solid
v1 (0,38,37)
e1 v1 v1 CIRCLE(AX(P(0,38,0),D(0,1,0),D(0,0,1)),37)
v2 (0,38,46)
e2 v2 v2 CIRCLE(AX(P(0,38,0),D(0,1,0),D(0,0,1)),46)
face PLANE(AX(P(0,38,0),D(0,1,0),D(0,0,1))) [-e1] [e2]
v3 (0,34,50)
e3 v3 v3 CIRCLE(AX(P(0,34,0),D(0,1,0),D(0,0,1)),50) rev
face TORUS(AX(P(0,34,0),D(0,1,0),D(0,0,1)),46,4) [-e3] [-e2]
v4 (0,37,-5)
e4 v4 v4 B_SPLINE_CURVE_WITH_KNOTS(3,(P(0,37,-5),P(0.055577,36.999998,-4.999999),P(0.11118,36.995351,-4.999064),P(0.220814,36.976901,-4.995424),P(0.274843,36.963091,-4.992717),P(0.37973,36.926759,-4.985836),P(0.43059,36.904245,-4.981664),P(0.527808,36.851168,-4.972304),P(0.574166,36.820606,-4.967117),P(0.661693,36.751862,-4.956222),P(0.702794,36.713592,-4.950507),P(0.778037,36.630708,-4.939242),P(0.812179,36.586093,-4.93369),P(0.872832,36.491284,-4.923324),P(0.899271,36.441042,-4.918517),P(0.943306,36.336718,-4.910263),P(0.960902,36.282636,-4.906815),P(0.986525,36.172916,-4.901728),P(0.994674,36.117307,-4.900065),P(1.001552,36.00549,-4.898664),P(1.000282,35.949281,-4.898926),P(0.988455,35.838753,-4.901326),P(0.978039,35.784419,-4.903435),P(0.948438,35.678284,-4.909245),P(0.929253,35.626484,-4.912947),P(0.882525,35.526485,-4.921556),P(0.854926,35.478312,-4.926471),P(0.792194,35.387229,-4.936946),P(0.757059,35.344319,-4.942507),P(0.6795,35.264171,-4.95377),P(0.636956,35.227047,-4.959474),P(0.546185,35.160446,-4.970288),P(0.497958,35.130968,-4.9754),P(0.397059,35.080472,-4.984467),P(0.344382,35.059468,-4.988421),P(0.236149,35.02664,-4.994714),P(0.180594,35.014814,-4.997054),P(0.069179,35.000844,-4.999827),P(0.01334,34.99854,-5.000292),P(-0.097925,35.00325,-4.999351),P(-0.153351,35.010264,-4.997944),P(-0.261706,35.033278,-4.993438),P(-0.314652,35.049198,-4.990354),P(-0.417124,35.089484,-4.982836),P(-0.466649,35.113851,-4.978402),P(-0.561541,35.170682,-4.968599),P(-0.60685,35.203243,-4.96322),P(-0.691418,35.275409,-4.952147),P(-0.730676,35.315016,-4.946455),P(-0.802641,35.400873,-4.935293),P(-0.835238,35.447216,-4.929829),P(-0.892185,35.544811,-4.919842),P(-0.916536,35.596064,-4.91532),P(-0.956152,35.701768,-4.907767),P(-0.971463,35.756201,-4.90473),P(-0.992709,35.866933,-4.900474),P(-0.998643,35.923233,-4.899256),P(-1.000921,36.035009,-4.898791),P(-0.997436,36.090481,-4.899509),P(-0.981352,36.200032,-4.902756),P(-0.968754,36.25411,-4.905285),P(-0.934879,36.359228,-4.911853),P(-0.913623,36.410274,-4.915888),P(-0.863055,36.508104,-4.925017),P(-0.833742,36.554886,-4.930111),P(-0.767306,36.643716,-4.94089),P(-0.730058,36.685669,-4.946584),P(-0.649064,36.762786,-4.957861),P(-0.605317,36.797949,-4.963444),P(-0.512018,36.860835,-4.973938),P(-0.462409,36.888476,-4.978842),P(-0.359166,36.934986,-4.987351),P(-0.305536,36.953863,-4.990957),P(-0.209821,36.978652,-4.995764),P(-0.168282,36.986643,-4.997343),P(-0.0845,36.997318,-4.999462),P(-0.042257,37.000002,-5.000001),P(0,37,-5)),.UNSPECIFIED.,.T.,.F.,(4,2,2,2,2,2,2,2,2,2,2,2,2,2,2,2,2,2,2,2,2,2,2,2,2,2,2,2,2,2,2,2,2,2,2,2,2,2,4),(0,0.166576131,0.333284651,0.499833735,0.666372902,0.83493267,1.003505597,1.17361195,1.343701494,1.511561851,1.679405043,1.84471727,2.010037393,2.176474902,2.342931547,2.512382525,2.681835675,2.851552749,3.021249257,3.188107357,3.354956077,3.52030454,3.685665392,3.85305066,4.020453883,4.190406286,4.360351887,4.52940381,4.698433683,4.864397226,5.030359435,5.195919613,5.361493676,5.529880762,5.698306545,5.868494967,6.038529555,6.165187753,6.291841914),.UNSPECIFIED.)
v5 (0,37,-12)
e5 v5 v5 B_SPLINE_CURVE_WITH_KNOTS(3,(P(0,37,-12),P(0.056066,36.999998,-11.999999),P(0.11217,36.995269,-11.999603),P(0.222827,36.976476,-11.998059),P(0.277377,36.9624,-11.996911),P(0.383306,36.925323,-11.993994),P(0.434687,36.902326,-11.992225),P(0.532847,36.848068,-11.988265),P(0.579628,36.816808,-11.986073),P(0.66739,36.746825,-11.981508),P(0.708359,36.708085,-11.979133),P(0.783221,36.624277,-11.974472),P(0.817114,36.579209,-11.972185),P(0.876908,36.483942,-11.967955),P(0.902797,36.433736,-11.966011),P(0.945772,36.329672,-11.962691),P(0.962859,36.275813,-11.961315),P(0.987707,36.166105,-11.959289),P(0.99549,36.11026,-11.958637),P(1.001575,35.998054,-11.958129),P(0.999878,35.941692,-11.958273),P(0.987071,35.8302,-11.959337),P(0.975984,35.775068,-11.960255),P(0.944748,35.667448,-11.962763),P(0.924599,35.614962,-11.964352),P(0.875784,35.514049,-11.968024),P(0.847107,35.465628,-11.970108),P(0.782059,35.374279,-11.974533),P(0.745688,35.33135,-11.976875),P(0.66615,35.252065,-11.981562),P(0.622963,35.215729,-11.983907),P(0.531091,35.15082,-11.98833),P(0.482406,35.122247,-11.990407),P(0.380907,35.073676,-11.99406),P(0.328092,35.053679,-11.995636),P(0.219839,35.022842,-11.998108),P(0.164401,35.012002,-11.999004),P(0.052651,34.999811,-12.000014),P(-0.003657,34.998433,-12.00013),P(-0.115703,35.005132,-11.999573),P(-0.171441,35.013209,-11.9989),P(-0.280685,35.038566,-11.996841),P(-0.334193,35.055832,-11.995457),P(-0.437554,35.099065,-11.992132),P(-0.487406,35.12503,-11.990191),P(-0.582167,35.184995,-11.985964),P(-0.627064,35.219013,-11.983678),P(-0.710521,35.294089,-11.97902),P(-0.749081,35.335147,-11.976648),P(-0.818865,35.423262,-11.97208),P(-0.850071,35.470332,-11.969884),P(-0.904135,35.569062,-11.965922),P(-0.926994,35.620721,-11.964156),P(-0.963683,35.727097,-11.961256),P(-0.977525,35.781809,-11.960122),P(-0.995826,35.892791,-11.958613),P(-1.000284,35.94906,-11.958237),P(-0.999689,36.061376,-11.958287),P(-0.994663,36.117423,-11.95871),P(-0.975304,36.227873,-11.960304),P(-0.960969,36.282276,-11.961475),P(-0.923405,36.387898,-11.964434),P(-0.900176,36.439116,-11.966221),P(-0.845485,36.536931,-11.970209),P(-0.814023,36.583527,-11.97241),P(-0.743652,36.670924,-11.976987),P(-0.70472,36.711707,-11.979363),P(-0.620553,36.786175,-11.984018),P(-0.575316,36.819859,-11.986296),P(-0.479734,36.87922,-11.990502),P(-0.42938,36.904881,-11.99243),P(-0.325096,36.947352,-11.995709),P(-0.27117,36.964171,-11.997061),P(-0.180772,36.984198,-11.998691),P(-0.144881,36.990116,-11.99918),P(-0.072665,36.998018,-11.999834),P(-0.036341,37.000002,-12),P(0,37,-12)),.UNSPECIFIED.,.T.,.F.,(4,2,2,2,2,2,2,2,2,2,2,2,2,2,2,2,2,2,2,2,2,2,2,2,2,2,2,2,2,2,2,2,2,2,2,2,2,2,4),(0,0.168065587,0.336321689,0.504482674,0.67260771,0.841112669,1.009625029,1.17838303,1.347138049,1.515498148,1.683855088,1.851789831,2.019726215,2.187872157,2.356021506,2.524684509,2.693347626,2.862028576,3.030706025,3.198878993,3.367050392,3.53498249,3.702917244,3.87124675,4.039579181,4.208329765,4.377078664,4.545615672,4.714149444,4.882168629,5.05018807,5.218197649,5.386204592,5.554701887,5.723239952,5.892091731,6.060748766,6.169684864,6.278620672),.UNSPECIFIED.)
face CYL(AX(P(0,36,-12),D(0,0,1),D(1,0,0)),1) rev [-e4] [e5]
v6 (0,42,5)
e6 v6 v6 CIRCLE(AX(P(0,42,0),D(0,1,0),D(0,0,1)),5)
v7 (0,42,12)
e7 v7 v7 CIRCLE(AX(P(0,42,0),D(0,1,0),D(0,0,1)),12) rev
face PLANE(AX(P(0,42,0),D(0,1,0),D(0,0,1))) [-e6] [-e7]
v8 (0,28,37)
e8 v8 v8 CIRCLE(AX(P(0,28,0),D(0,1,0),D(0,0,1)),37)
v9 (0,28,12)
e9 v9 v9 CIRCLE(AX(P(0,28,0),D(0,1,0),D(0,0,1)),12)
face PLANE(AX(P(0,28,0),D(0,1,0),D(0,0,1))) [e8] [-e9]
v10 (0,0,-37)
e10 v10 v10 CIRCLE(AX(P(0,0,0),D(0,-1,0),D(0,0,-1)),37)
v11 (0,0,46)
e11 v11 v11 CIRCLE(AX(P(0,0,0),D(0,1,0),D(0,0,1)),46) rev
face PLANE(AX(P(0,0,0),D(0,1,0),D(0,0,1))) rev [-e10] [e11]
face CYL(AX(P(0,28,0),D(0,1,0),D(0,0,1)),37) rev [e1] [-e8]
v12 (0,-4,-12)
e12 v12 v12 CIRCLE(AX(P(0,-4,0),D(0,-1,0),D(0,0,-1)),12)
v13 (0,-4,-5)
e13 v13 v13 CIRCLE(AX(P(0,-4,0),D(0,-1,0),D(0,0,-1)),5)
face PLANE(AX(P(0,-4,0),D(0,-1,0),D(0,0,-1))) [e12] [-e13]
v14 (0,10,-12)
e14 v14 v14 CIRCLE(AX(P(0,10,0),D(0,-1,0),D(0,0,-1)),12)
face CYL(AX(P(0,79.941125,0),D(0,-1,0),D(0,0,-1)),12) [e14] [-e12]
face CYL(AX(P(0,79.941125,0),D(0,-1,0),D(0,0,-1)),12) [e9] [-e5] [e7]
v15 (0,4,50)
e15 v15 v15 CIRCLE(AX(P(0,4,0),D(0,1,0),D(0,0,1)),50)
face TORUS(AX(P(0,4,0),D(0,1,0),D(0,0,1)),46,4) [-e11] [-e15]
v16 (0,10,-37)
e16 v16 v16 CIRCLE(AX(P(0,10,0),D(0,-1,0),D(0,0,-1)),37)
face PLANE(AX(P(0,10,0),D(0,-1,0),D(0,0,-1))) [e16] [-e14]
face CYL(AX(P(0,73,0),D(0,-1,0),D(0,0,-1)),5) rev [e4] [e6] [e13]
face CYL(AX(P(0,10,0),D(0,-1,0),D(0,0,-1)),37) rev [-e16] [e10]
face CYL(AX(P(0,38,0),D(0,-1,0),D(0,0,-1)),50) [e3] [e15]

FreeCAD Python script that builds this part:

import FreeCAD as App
import Part
import Sketcher
from FreeCAD import Vector
Q = App.Units.Quantity


def edges_at(feature, points):
    """Names of the edges that pass closest to the given points."""
    edges = feature.Shape.Edges
    near = lambda p: min(range(len(edges)), key=lambda i: edges[i].distToShape(Part.Vertex(*p))[0])
    return sorted({f"Edge{near(p) + 1}" for p in points})

doc = App.newDocument("Part")
body = doc.addObject("PartDesign::Body", "Body")

# Sketch on XZ plane
sketch1 = doc.addObject("Sketcher::SketchObject", "Sketch")
body.addObject(sketch1)
sketch1.AttachmentSupport = (doc.XZ_Plane, [""])
sketch1.MapMode = "FlatFace"
sketch1.addGeometry(Part.Circle(Vector(0, 0, 0), Vector(0, 0, 1), 50), False)
sketch1.addConstraint([
    Sketcher.Constraint("Coincident", 0, 3, -1, 1),
    Sketcher.Constraint("Diameter", 0, Q("100 mm")),
])
pad1 = doc.addObject("PartDesign::Pad", "Pad")
body.addObject(pad1)
pad1.Profile = sketch1
pad1.Length = 38
pad1.Reversed = True

# Sketch on XZ plane
sketch2 = doc.addObject("Sketcher::SketchObject", "Sketch001")
body.addObject(sketch2)
sketch2.AttachmentSupport = (doc.XZ_Plane, [""])
sketch2.MapMode = "FlatFace"
sketch2.addGeometry(Part.Circle(Vector(0, 0, 0), Vector(0, 0, 1), 12), False)
sketch2.addConstraint([
    Sketcher.Constraint("Coincident", 0, 3, -1, 1),
    Sketcher.Constraint("Diameter", 0, Q("24 mm")),
])
pad2 = doc.addObject("PartDesign::Pad", "Pad001")
body.addObject(pad2)
pad2.Profile = sketch2
pad2.Type = "TwoLengths"
pad2.Length = 4
pad2.Length2 = 42

# Sketch on XZ plane
sketch3 = doc.addObject("Sketcher::SketchObject", "Sketch002")
body.addObject(sketch3)
sketch3.AttachmentSupport = (doc.XZ_Plane, [""])
sketch3.MapMode = "FlatFace"
sketch3.AttachmentOffset = App.Placement(Vector(0, 0, 4), App.Rotation())
sketch3.addGeometry(Part.Circle(Vector(0, 0, 0), Vector(0, 0, 1), 5), False)
sketch3.addConstraint([
    Sketcher.Constraint("Coincident", 0, 3, -1, 1),
    Sketcher.Constraint("Diameter", 0, Q("10 mm")),
])
pocket1 = doc.addObject("PartDesign::Pocket", "Pocket")
body.addObject(pocket1)
pocket1.Profile = sketch3
pocket1.Length = 77

# Sketch on XZ plane
sketch4 = doc.addObject("Sketcher::SketchObject", "Sketch003")
body.addObject(sketch4)
sketch4.AttachmentSupport = (doc.XZ_Plane, [""])
sketch4.MapMode = "FlatFace"
sketch4.addGeometry([
    Part.Circle(Vector(0, 0, 0), Vector(0, 0, 1), 37),
    Part.Circle(Vector(0, 0, 0), Vector(0, 0, 1), 12),
], False)
sketch4.addConstraint([
    Sketcher.Constraint("Coincident", 0, 3, -1, 1),
    Sketcher.Constraint("Coincident", 1, 3, -1, 1),
    Sketcher.Constraint("Diameter", 0, Q("74 mm")),
    Sketcher.Constraint("Diameter", 1, Q("24 mm")),
])
pocket2 = doc.addObject("PartDesign::Pocket", "Pocket001")
body.addObject(pocket2)
pocket2.Profile = sketch4
pocket2.Length = 10

# Sketch on XZ plane
sketch5 = doc.addObject("Sketcher::SketchObject", "Sketch004")
body.addObject(sketch5)
sketch5.AttachmentSupport = (doc.XZ_Plane, [""])
sketch5.MapMode = "FlatFace"
sketch5.AttachmentOffset = App.Placement(Vector(0, 0, -28), App.Rotation())
sketch5.addGeometry([
    Part.Circle(Vector(0, 0, 0), Vector(0, 0, 1), 37),
    Part.Circle(Vector(0, 0, 0), Vector(0, 0, 1), 12),
], False)
sketch5.addConstraint([
    Sketcher.Constraint("Coincident", 0, 3, -1, 1),
    Sketcher.Constraint("Coincident", 1, 3, -1, 1),
    Sketcher.Constraint("Diameter", 0, Q("74 mm")),
    Sketcher.Constraint("Diameter", 1, Q("24 mm")),
])
pocket3 = doc.addObject("PartDesign::Pocket", "Pocket002")
body.addObject(pocket3)
pocket3.Profile = sketch5
pocket3.Length = 10
doc.recompute()

fillet = doc.addObject("PartDesign::Fillet", "Fillet")
body.addObject(fillet)
fillet.Base = (pocket3, edges_at(pocket3, [(0, 0, -50), (0, 38, -50)]))
fillet.Radius = 4

# Sketch on XY plane
sketch6 = doc.addObject("Sketcher::SketchObject", "Sketch005")
body.addObject(sketch6)
sketch6.AttachmentSupport = (doc.XY_Plane, [""])
sketch6.MapMode = "FlatFace"
sketch6.addGeometry(Part.Circle(Vector(0, 36, 0), Vector(0, 0, 1), 1), False)
sketch6.addConstraint([
    Sketcher.Constraint("PointOnObject", 0, 3, -2),
    Sketcher.Constraint("Diameter", 0, Q("2 mm")),
    Sketcher.Constraint("DistanceY", -1, 1, 0, 3, Q("36 mm")),
])
pocket4 = doc.addObject("PartDesign::Pocket", "Pocket003")
body.addObject(pocket4)
pocket4.Profile = sketch6
pocket4.Length = 12

doc.recompute()
